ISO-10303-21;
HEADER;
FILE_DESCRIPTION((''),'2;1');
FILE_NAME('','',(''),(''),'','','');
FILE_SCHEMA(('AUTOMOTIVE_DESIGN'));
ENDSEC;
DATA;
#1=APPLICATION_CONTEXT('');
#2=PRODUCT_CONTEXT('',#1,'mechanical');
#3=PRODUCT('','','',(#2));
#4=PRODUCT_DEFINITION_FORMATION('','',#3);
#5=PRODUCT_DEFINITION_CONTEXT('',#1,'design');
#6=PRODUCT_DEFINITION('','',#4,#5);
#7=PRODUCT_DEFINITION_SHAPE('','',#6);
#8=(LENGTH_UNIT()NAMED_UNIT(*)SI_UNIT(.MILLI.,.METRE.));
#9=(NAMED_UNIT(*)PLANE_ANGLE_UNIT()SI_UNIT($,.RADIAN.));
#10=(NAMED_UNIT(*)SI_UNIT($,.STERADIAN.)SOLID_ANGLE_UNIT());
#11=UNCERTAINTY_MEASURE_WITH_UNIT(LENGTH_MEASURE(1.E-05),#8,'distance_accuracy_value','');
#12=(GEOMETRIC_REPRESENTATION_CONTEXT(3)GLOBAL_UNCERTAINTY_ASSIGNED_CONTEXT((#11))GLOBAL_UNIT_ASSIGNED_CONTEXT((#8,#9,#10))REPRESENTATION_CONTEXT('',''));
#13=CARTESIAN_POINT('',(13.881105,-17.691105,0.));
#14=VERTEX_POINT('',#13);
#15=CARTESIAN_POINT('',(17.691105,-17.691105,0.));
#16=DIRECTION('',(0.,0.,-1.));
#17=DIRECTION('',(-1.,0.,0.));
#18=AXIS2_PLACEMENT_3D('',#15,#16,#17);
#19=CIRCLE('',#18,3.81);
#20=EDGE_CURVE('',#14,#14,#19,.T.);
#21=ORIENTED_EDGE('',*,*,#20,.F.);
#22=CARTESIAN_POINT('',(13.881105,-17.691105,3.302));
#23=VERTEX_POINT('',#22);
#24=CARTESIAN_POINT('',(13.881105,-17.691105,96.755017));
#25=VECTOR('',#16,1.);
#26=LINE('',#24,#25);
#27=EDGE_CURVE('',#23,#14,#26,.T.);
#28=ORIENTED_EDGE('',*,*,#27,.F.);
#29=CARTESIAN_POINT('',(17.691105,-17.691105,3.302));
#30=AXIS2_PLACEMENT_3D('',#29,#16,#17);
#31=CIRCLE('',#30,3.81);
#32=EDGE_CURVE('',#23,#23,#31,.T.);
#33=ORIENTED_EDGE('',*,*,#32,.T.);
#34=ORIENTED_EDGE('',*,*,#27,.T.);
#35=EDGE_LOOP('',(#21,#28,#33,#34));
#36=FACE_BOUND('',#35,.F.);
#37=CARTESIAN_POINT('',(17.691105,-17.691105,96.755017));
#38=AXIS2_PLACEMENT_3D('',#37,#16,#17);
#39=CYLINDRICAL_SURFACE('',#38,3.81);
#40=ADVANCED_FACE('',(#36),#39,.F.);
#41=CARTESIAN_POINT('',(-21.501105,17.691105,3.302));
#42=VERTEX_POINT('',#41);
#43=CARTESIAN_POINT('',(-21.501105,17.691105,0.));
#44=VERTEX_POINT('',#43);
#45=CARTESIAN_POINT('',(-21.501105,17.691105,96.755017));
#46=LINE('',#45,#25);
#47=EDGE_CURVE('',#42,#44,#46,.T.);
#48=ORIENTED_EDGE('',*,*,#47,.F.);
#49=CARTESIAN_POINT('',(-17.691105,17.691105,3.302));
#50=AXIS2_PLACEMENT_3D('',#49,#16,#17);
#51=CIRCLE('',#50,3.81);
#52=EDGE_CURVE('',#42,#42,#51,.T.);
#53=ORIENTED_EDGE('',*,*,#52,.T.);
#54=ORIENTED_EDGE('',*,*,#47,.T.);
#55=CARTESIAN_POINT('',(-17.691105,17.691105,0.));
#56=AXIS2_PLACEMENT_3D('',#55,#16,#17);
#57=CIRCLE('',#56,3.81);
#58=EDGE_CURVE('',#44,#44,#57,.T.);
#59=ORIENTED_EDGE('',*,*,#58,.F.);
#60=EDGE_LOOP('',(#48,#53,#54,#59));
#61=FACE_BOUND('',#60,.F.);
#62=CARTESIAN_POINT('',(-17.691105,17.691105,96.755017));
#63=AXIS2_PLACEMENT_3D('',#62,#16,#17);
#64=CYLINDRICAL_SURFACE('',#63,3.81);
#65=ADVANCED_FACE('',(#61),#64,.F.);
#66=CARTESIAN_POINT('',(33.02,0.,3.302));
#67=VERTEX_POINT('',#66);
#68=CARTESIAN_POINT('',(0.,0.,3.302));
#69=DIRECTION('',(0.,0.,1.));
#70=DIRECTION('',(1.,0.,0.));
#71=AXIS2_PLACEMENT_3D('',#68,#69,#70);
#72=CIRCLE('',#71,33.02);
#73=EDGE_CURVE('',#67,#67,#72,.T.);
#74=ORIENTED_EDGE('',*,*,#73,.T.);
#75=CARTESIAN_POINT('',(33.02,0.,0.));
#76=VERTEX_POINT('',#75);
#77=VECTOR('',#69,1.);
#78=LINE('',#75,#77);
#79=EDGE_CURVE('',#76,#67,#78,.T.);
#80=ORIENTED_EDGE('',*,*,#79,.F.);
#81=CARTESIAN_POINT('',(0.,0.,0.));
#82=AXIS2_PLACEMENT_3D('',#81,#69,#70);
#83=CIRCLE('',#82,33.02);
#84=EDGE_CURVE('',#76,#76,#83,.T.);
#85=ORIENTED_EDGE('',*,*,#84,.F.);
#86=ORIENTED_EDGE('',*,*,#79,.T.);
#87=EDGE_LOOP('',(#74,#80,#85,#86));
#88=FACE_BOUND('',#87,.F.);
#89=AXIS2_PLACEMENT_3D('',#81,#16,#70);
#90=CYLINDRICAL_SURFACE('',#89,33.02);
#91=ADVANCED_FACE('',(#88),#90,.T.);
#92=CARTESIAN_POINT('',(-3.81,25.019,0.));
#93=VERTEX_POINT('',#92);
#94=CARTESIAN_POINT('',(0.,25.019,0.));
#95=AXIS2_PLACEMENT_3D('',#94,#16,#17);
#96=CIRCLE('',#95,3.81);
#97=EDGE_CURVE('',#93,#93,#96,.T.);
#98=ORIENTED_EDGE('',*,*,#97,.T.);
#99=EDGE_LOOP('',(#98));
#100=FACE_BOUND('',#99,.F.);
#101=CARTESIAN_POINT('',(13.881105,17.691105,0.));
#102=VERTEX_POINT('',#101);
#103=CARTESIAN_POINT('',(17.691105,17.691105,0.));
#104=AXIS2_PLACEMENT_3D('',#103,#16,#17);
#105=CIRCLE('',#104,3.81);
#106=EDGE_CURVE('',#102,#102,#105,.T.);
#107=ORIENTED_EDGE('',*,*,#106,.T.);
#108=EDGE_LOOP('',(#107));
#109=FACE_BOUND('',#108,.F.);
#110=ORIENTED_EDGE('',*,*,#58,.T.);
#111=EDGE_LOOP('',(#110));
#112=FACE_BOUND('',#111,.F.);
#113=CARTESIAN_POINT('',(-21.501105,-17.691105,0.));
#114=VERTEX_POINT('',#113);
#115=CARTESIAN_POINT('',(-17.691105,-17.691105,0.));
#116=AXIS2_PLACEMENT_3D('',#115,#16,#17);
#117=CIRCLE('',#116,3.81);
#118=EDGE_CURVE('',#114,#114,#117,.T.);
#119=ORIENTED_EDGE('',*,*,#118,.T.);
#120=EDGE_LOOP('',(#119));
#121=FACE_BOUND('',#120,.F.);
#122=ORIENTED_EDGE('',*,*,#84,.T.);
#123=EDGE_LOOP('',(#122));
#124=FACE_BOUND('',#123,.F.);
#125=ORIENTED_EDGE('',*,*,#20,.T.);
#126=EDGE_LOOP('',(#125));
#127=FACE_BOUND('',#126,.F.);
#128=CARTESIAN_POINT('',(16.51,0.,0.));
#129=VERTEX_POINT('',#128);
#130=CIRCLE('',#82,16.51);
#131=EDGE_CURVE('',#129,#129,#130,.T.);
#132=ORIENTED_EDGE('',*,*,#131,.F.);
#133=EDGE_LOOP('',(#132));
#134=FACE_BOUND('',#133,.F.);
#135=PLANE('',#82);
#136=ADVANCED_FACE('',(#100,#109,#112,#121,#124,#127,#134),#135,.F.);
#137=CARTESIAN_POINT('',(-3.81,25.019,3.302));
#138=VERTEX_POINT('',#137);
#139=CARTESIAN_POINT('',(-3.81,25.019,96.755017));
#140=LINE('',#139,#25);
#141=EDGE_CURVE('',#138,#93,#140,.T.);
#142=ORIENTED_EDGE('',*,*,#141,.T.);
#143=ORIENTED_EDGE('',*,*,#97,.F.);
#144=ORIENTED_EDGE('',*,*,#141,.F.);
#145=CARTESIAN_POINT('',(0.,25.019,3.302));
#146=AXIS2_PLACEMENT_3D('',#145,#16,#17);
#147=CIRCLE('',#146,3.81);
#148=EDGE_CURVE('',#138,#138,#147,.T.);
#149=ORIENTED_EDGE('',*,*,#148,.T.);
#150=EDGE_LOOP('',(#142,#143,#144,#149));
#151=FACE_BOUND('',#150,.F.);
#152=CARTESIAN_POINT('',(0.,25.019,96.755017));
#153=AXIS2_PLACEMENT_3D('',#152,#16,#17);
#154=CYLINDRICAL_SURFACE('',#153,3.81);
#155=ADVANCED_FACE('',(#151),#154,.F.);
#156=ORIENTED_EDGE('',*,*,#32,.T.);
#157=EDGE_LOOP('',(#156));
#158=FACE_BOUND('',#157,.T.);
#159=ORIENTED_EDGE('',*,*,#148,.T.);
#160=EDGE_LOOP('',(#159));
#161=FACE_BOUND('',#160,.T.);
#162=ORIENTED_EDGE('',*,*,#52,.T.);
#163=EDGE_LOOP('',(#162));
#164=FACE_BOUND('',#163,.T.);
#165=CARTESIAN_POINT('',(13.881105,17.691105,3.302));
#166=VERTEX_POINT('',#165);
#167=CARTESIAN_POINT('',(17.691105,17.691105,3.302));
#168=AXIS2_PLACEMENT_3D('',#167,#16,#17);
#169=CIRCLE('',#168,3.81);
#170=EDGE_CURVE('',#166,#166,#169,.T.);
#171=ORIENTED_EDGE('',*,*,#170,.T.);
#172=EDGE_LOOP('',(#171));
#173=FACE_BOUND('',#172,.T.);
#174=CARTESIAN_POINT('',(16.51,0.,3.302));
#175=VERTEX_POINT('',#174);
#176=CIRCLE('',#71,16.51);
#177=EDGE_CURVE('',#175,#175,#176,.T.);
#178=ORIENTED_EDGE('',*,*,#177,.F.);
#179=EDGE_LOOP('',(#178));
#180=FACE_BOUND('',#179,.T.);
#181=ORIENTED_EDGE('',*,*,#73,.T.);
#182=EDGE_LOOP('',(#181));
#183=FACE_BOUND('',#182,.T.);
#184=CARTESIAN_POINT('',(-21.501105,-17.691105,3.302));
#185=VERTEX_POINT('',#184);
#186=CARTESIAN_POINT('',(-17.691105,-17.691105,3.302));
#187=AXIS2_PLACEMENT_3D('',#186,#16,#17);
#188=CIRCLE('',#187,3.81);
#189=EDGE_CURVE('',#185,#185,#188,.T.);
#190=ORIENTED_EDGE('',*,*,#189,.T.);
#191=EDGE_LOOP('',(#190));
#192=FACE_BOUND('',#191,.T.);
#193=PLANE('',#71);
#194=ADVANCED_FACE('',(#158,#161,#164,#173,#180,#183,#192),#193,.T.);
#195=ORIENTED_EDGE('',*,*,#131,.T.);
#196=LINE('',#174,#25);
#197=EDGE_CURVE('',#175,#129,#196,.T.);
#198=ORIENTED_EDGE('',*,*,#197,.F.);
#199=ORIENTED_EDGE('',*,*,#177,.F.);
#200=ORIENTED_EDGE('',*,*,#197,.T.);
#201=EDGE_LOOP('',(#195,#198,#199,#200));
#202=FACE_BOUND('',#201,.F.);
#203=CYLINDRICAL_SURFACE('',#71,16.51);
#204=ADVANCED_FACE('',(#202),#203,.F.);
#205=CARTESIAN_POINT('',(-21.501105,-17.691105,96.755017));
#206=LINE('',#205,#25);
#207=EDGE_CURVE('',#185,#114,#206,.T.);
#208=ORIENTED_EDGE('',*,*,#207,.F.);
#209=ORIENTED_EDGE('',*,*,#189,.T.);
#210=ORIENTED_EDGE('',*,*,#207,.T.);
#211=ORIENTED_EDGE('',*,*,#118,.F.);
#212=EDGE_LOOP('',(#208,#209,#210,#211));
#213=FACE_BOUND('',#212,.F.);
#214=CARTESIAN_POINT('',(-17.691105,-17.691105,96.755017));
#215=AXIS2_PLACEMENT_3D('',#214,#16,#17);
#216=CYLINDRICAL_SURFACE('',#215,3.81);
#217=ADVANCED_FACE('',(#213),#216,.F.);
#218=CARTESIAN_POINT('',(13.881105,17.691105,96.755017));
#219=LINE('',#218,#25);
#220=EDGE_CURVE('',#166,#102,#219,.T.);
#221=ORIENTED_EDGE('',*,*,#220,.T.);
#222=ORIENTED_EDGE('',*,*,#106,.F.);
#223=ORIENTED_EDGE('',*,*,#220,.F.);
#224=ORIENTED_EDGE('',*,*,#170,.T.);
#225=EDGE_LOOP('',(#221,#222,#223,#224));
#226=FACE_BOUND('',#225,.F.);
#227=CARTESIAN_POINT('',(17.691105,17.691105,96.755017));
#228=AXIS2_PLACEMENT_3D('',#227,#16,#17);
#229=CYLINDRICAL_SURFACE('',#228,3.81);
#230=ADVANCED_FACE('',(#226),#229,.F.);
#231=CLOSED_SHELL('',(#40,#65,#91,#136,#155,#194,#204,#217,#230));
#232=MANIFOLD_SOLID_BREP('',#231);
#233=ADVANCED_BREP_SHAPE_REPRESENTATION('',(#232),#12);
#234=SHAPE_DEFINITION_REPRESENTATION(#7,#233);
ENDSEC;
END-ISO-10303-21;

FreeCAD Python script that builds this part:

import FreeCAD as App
import Part
import Sketcher

V = App.Vector
Q = App.Units.Quantity

doc = App.newDocument("Part")
body = doc.addObject("PartDesign::Body", "Body")

sketch1 = doc.addObject("Sketcher::SketchObject", "Sketch")
body.addObject(sketch1)
sketch1.AttachmentSupport = (doc.XY_Plane, [""])
sketch1.MapMode = "FlatFace"
sketch1.addGeometry(Part.Circle(V(0, 0, 0), V(0, 0, 1), 33), False)
sketch1.addConstraint([
    Sketcher.Constraint("Coincident", 0, 3, -1, 1),
    Sketcher.Constraint("Diameter", 0, Q("2.6 in")),
])
pad1 = doc.addObject("PartDesign::Pad", "Pad")
body.addObject(pad1)
pad1.Profile = sketch1
pad1.Length = Q("0.13 in")

sketch2 = doc.addObject("Sketcher::SketchObject", "Sketch001")
body.addObject(sketch2)
sketch2.AttachmentSupport = (doc.XY_Plane, [""])
sketch2.MapMode = "FlatFace"
sketch2.AttachmentOffset = App.Placement(V(0, 0, 0.13 * 25.4), App.Rotation())
sketch2.addGeometry(Part.Circle(V(0, 0, 0), V(0, 0, 1), 17), False)
sketch2.addConstraint([
    Sketcher.Constraint("Coincident", 0, 3, -1, 1),
    Sketcher.Constraint("Diameter", 0, Q("1.3 in")),
])
pocket1 = doc.addObject("PartDesign::Pocket", "Pocket")
body.addObject(pocket1)
pocket1.Profile = sketch2
pocket1.Type = "ThroughAll"

sketch3 = doc.addObject("Sketcher::SketchObject", "Sketch002")
body.addObject(sketch3)
sketch3.AttachmentSupport = (doc.XY_Plane, [""])
sketch3.MapMode = "FlatFace"
sketch3.AttachmentOffset = App.Placement(V(0, 0, 0.13 * 25.4), App.Rotation())
sketch3.addGeometry([
    Part.Circle(V(17.7, -17.7, 0), V(0, 0, 1), 3.8),
    Part.Circle(V(-17.7, -17.7, 0), V(0, 0, 1), 3.8),
    Part.Circle(V(17.7, 17.7, 0), V(0, 0, 1), 3.8),
    Part.Circle(V(0, 25, 0), V(0, 0, 1), 3.8),
    Part.Circle(V(-17.7, 17.7, 0), V(0, 0, 1), 3.8),
], False)
sketch3.addConstraint([
    Sketcher.Constraint("Equal", 0, 1),
    Sketcher.Constraint("Equal", 1, 2),
    Sketcher.Constraint("Equal", 2, 3),
    Sketcher.Constraint("Equal", 3, 4),
    Sketcher.Constraint("Symmetric", 1, 3, 2, 3, -1, 1),
    Sketcher.Constraint("Symmetric", 0, 3, 4, 3, -1, 1),
    Sketcher.Constraint("Symmetric", 0, 3, 1, 3, -2),
    Sketcher.Constraint("PointOnObject", 3, 3, -2),
    Sketcher.Constraint("Diameter", 0, Q("0.3 in")),
    Sketcher.Constraint("DistanceY", -1, 1, 3, 3, Q("0.985 in")),
    Sketcher.Constraint("DistanceX", -1, 1, 0, 3, Q("0.6965002 in")),
    Sketcher.Constraint("DistanceY", 0, 3, -1, 1, Q("0.6965002 in")),
])
doc.recompute()
hole = doc.addObject("PartDesign::Hole", "Hole")
body.addObject(hole)
hole.Profile = sketch3
hole.ThreadType = "None"
hole.Diameter = Q("0.3 in")
hole.DepthType = "ThroughAll"

doc.recompute()
